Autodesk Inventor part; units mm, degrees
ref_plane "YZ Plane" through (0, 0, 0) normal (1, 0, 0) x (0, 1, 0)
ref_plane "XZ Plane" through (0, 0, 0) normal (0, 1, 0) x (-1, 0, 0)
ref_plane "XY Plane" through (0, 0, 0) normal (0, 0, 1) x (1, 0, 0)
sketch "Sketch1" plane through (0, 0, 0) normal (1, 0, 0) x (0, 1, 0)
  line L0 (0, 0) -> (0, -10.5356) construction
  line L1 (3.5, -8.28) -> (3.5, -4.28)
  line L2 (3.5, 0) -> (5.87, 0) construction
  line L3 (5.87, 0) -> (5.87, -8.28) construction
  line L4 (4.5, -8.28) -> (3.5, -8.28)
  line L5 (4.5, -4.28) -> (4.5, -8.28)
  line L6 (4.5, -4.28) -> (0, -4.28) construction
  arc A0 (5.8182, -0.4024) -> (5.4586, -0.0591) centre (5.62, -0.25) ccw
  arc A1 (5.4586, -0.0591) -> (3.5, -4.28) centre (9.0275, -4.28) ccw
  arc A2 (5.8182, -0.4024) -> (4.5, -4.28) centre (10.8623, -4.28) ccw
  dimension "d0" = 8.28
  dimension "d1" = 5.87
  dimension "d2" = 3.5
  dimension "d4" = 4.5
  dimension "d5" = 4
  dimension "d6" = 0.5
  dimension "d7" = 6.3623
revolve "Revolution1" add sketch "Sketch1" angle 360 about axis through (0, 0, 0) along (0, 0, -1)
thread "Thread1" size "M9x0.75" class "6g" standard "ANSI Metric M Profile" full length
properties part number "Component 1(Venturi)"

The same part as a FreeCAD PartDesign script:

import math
import FreeCAD as App
import Part
import Sketcher

V = App.Vector
Q = App.Units.Quantity

doc = App.newDocument("Part")
params = doc.addObject("Spreadsheet::Sheet", "Params")
for row, (alias, value) in enumerate([
    ("sketch1_height", "4 mm"),
    ("sketch1_radius", "0.25 mm"),
    ("revolution_angle", "360 deg"),
], start=1):
    params.set(f"A{row}", alias)
    params.set(f"B{row}", "=" + value)
    params.setAlias(f"B{row}", alias)

body = doc.addObject("PartDesign::Body", "Body")

# Sketch on YZ plane
sketch1 = body.newObject("Sketcher::SketchObject", "Sketch")
sketch1.AttachmentSupport = (doc.getObject("YZ_Plane"), [""])
sketch1.MapMode = "FlatFace"
sketch1.addGeometry(Part.LineSegment(V(3.5, -4.28, 0), V(3.5, -8.28, 0)), False)
sketch1.addGeometry(Part.LineSegment(V(3.5, -8.28, 0), V(4.5, -8.28, 0)), False)
sketch1.addGeometry(Part.LineSegment(V(4.5, -8.28, 0), V(4.5, -4.28, 0)), False)
sketch1.addGeometry(Part.ArcOfCircle(Part.Circle(V(10.86, -4.28, 0), V(0, 0, 1), 6.36), math.radians(142), math.radians(180)), False)
sketch1.addGeometry(Part.ArcOfCircle(Part.Circle(V(5.62, -0.25, 0), V(0, 0, 1), 0.25), math.radians(-38), math.radians(130)), False)
sketch1.addGeometry(Part.ArcOfCircle(Part.Circle(V(9.03, -4.28, 0), V(0, 0, 1), 5.53), math.radians(130), math.radians(180)), False)
sketch1.addConstraint(Sketcher.Constraint("Coincident", 0, 2, 1, 1))
sketch1.addConstraint(Sketcher.Constraint("Coincident", 1, 2, 2, 1))
sketch1.addConstraint(Sketcher.Constraint("Tangent", 2, 2, 3, 2))
sketch1.addConstraint(Sketcher.Constraint("Tangent", 3, 1, 4, 1))
sketch1.addConstraint(Sketcher.Constraint("Tangent", 4, 2, 5, 1))
sketch1.addConstraint(Sketcher.Constraint("Tangent", 5, 2, 0, 1))
sketch1.addConstraint(Sketcher.Constraint("Vertical", 0))
sketch1.addConstraint(Sketcher.Constraint("Horizontal", 1))
sketch1.addConstraint(Sketcher.Constraint("Vertical", 2))
sketch1.addConstraint(Sketcher.Constraint("Horizontal", 3, 3, 5, 3))
sketch1.addConstraint(Sketcher.Constraint("DistanceY", 0, 2, 0, 1, Q("4 mm")))
sketch1.addConstraint(Sketcher.Constraint("Radius", 4, Q("0.25 mm")))
sketch1.addConstraint(Sketcher.Constraint("DistanceX", -1, 1, 0, 2, Q("3.5 mm")))
sketch1.addConstraint(Sketcher.Constraint("DistanceX", -1, 1, 1, 2, Q("4.5 mm")))
sketch1.addConstraint(Sketcher.Constraint("Radius", 3, Q("6.3623 mm")))
sketch1.addConstraint(Sketcher.Constraint("DistanceY", 0, 2, -1, 1, Q("8.28 mm")))
sketch1.addConstraint(Sketcher.Constraint("Radius", 5, Q("5.5275 mm")))
sketch1.setExpression("Constraints[10]", "Params.sketch1_height")
sketch1.setExpression("Constraints[11]", "Params.sketch1_radius")
revolution = body.newObject("PartDesign::Revolution", "Revolution")
revolution.Profile = sketch1
revolution.ReferenceAxis = (sketch1, ["V_Axis"])
revolution.setExpression("Angle", "Params.revolution_angle")

doc.recompute()
